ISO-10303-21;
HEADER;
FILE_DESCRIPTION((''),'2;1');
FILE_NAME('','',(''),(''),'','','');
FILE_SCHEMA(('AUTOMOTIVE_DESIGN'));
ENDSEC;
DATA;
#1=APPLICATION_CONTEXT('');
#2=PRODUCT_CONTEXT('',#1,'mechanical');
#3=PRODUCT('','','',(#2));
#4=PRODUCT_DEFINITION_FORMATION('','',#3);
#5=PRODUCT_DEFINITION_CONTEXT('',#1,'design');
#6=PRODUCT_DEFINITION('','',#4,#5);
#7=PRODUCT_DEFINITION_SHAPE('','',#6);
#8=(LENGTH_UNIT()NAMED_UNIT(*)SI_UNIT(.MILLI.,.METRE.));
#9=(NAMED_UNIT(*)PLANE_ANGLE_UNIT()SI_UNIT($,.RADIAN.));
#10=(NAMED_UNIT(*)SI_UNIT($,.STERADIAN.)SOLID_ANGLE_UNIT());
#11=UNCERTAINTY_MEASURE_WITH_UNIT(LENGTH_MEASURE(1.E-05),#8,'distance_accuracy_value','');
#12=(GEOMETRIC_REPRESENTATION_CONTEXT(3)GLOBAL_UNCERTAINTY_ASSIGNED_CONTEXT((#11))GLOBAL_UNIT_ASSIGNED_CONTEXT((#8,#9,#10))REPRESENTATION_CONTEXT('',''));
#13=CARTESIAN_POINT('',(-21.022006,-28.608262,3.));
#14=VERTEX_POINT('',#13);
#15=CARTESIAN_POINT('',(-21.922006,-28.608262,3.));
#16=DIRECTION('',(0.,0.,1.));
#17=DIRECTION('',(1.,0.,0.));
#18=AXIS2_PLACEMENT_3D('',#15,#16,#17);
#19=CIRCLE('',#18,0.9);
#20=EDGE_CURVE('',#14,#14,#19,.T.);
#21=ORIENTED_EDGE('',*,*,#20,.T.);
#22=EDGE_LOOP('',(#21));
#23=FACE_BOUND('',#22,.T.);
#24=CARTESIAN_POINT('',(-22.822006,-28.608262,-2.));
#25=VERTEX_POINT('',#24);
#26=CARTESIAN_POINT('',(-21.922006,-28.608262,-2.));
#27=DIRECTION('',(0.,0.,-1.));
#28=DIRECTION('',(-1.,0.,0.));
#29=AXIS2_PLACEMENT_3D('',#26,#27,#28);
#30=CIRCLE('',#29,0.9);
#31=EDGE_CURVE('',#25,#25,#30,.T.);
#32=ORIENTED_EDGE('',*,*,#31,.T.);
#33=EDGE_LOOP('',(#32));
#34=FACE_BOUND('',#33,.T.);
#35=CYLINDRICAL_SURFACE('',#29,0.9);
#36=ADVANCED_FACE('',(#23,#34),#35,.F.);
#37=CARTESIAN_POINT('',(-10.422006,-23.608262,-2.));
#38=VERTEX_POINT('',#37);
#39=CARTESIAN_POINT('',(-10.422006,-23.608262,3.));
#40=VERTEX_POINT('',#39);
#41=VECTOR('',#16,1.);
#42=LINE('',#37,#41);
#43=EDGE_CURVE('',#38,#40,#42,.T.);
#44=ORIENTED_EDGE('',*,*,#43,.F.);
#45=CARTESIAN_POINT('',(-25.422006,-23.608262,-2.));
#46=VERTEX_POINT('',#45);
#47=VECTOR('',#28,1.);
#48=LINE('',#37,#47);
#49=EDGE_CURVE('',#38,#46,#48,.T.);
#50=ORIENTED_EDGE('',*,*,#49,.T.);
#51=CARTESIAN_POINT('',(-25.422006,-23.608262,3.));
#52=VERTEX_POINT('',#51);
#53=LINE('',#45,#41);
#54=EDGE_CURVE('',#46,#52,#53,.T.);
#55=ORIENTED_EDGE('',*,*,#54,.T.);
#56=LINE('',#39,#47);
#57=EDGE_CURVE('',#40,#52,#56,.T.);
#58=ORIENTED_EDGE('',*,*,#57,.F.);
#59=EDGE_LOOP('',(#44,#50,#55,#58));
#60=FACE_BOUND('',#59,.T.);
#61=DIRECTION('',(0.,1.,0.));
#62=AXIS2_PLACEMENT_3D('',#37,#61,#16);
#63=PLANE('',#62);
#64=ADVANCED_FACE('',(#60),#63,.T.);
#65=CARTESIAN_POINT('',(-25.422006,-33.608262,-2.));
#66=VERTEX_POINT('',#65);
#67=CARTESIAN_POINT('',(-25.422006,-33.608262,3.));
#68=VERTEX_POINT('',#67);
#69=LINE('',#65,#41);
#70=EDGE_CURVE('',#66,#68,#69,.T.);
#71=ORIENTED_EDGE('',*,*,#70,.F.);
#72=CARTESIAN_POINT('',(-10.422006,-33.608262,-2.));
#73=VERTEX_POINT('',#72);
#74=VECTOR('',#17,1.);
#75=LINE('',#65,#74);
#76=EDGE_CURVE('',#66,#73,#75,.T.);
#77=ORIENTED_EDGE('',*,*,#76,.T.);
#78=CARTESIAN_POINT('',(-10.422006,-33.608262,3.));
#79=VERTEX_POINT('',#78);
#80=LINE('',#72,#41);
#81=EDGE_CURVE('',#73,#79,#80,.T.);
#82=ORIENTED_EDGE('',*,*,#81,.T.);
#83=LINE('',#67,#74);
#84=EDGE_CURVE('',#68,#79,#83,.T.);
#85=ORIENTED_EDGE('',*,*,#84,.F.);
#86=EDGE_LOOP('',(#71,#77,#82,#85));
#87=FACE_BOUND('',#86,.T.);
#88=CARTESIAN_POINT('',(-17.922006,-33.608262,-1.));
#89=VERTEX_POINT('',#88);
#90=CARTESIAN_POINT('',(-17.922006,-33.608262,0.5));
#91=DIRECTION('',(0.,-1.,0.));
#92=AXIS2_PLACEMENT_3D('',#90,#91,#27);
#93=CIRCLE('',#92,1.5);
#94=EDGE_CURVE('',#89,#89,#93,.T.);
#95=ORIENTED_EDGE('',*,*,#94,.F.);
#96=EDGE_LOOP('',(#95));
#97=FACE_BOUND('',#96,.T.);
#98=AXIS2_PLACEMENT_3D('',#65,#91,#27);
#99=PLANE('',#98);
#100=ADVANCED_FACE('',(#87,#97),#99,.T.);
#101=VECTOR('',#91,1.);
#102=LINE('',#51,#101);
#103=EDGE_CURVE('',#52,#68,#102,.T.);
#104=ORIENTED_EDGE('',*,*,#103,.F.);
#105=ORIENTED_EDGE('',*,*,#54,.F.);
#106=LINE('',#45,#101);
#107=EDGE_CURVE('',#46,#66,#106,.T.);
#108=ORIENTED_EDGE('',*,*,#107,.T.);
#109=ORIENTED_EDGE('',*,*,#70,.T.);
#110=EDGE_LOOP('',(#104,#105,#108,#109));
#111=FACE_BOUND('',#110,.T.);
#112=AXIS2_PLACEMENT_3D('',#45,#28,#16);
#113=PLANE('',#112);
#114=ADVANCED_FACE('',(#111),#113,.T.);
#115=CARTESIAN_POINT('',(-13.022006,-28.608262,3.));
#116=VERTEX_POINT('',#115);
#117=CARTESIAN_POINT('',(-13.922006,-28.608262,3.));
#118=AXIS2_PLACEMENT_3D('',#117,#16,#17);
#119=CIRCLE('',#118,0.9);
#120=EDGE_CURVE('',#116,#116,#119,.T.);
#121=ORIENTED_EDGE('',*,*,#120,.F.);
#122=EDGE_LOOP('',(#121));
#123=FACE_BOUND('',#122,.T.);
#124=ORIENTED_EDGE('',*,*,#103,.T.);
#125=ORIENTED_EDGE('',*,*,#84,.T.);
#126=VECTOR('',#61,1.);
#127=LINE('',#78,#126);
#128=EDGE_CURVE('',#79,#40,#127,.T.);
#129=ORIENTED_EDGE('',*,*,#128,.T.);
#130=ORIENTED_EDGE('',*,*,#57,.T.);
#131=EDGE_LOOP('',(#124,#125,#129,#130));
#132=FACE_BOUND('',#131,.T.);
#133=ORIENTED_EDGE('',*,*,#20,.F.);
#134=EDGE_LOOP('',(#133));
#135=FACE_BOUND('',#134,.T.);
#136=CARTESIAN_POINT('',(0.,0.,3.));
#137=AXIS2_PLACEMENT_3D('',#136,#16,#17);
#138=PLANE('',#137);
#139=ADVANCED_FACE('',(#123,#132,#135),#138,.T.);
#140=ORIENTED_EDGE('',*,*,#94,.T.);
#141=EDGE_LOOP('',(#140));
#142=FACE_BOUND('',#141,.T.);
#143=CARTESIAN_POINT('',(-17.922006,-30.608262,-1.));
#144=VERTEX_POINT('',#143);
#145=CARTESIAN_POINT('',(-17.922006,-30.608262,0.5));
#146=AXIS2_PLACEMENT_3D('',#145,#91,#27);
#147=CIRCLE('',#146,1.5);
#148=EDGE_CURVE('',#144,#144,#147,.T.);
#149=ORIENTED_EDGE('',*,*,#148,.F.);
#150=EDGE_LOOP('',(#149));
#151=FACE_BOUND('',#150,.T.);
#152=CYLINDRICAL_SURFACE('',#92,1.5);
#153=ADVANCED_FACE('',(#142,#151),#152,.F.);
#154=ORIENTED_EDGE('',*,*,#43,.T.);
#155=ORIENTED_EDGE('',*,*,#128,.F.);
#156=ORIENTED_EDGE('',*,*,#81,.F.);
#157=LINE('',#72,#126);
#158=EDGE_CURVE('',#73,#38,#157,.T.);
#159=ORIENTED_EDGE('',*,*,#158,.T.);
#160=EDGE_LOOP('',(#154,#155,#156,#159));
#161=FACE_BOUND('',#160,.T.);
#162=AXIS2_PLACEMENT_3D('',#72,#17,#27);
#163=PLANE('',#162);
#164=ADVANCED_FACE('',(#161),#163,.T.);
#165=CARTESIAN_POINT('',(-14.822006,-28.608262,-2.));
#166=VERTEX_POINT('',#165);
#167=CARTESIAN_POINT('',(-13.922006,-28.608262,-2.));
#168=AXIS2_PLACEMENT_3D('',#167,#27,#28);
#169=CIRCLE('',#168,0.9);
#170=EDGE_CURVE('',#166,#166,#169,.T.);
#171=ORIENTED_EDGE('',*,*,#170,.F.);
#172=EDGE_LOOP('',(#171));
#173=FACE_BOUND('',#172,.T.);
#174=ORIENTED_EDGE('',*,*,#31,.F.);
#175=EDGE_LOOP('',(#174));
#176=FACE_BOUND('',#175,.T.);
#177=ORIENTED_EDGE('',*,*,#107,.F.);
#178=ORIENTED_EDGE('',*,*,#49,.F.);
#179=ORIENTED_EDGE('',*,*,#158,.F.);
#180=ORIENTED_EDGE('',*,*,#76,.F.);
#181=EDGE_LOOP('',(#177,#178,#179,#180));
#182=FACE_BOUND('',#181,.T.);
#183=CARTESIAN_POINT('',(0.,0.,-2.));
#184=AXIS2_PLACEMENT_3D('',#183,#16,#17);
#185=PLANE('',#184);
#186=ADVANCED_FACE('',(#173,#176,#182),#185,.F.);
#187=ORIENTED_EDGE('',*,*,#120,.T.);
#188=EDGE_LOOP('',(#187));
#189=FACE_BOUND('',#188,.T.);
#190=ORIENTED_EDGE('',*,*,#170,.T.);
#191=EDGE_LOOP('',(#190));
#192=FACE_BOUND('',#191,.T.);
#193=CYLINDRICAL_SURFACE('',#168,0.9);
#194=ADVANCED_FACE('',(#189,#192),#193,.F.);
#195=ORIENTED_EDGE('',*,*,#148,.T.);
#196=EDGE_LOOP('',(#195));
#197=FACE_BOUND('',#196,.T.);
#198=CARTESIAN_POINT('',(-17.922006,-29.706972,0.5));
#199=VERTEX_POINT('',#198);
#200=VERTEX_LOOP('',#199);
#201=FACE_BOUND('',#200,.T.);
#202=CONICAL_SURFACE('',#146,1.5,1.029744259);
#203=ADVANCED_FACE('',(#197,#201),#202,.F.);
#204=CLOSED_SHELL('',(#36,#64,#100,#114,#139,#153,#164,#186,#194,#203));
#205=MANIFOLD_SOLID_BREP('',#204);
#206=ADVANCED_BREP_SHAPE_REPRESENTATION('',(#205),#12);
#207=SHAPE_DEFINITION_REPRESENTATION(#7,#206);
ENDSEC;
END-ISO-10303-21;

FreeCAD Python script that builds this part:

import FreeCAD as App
import Part
import Sketcher
Q = App.Units.Quantity

doc = App.newDocument("Part")
params = doc.addObject("Spreadsheet::Sheet", "Params")
for row, (alias, value) in enumerate([
    ("sketch1_width", "15 mm"),
    ("sketch1_height", "10 mm"),
    ("pad1_length", "3 mm"),
    ("pad1_length2", "2 mm"),
    ("sketch2_diameter", "1.8 mm"),
    ("hole_diameter", "1.8 mm"),
    ("hole_depth", "28.17 mm"),
    ("sketch3_diameter", "3 mm"),
    ("hole2_diameter", "3 mm"),
    ("hole2_depth", "3 mm"),
], start=1):
    params.set(f"A{row}", alias)
    params.set(f"B{row}", "=" + value)
    params.setAlias(f"B{row}", alias)

body = doc.addObject("PartDesign::Body", "Body")

sketch1 = body.newObject("Sketcher::SketchObject", "Sketch")
sketch1.AttachmentSupport = (doc.getObject("XY_Plane"), [""])
sketch1.MapMode = "FlatFace"
sketch1.addGeometry([
    Part.LineSegment(App.Vector(-25.422006, -23.608262, 0), App.Vector(-25.422006, -33.608262, 0)),
    Part.LineSegment(App.Vector(-25.422006, -33.608262, 0), App.Vector(-10.422006, -33.608262, 0)),
    Part.LineSegment(App.Vector(-10.422006, -33.608262, 0), App.Vector(-10.422006, -23.608262, 0)),
    Part.LineSegment(App.Vector(-10.422006, -23.608262, 0), App.Vector(-25.422006, -23.608262, 0)),
], False)
sketch1.addConstraint([
    Sketcher.Constraint("Coincident", 0, 2, 1, 1),
    Sketcher.Constraint("Coincident", 1, 2, 2, 1),
    Sketcher.Constraint("Coincident", 2, 2, 3, 1),
    Sketcher.Constraint("Coincident", 3, 2, 0, 1),
    Sketcher.Constraint("Vertical", 0),
    Sketcher.Constraint("Horizontal", 1),
    Sketcher.Constraint("Vertical", 2),
    Sketcher.Constraint("Horizontal", 3),
    Sketcher.Constraint("DistanceX", 1, 1, 1, 2, Q("15 mm")),
    Sketcher.Constraint("DistanceY", 0, 2, 0, 1, Q("10 mm")),
    Sketcher.Constraint("DistanceX", 0, 2, -1, 1, Q("25.422006 mm")),
    Sketcher.Constraint("DistanceY", 0, 2, -1, 1, Q("33.608262 mm")),
])
sketch1.setExpression("Constraints[8]", "Params.sketch1_width")
sketch1.setExpression("Constraints[9]", "Params.sketch1_height")
pad1 = body.newObject("PartDesign::Pad", "Pad")
pad1.Profile = sketch1
pad1.Type = "TwoLengths"
pad1.setExpression("Length", "Params.pad1_length")
pad1.setExpression("Length2", "Params.pad1_length2")

sketch2 = body.newObject("Sketcher::SketchObject", "Sketch001")
sketch2.AttachmentSupport = (doc.getObject("XY_Plane"), [""])
sketch2.MapMode = "FlatFace"
sketch2.AttachmentOffset = App.Placement(App.Vector(0, 0, -2), App.Rotation())
sketch2.addGeometry([
    Part.Circle(App.Vector(-21.922006, -28.608262, 0), App.Vector(0, 0, 1), 0.9),
    Part.Circle(App.Vector(-13.922006, -28.608262, 0), App.Vector(0, 0, 1), 0.9),
], False)
sketch2.addConstraint([
    Sketcher.Constraint("Equal", 0, 1),
    Sketcher.Constraint("Horizontal", 0, 3, 1, 3),
    Sketcher.Constraint("Diameter", 0, Q("1.8 mm")),
    Sketcher.Constraint("DistanceX", 0, 3, 1, 3, Q("8 mm")),
    Sketcher.Constraint("DistanceX", 0, 3, -1, 1, Q("21.922006 mm")),
    Sketcher.Constraint("DistanceY", 0, 3, -1, 1, Q("28.608262 mm")),
])
sketch2.setExpression("Constraints[2]", "Params.sketch2_diameter")
doc.recompute()
hole = body.newObject("PartDesign::Hole", "Hole")
hole.Profile = sketch2
hole.ThreadType = "None"
hole.setExpression("Diameter", "Params.hole_diameter")
hole.DepthType = "Dimension"
hole.setExpression("Depth", "Params.hole_depth")
hole.DrillPoint = "Angled"
hole.DrillPointAngle = 118
hole.Reversed = True

sketch3 = body.newObject("Sketcher::SketchObject", "Sketch002")
sketch3.AttachmentSupport = (doc.getObject("XZ_Plane"), [""])
sketch3.MapMode = "FlatFace"
sketch3.AttachmentOffset = App.Placement(App.Vector(0, 0, 33.608262), App.Rotation())
sketch3.addGeometry(Part.Circle(App.Vector(-17.922006, 0.5, 0), App.Vector(0, 0, 1), 1.5), False)
sketch3.addConstraint([
    Sketcher.Constraint("Diameter", 0, Q("3 mm")),
    Sketcher.Constraint("DistanceY", -1, 1, 0, 3, Q("0.5 mm")),
    Sketcher.Constraint("DistanceX", 0, 3, -1, 1, Q("17.922006 mm")),
])
sketch3.setExpression("Constraints[0]", "Params.sketch3_diameter")
doc.recompute()
hole2 = body.newObject("PartDesign::Hole", "Hole001")
hole2.Profile = sketch3
hole2.ThreadType = "None"
hole2.setExpression("Diameter", "Params.hole2_diameter")
hole2.DepthType = "Dimension"
hole2.setExpression("Depth", "Params.hole2_depth")
hole2.DrillPoint = "Angled"
hole2.DrillPointAngle = 118

doc.recompute()
